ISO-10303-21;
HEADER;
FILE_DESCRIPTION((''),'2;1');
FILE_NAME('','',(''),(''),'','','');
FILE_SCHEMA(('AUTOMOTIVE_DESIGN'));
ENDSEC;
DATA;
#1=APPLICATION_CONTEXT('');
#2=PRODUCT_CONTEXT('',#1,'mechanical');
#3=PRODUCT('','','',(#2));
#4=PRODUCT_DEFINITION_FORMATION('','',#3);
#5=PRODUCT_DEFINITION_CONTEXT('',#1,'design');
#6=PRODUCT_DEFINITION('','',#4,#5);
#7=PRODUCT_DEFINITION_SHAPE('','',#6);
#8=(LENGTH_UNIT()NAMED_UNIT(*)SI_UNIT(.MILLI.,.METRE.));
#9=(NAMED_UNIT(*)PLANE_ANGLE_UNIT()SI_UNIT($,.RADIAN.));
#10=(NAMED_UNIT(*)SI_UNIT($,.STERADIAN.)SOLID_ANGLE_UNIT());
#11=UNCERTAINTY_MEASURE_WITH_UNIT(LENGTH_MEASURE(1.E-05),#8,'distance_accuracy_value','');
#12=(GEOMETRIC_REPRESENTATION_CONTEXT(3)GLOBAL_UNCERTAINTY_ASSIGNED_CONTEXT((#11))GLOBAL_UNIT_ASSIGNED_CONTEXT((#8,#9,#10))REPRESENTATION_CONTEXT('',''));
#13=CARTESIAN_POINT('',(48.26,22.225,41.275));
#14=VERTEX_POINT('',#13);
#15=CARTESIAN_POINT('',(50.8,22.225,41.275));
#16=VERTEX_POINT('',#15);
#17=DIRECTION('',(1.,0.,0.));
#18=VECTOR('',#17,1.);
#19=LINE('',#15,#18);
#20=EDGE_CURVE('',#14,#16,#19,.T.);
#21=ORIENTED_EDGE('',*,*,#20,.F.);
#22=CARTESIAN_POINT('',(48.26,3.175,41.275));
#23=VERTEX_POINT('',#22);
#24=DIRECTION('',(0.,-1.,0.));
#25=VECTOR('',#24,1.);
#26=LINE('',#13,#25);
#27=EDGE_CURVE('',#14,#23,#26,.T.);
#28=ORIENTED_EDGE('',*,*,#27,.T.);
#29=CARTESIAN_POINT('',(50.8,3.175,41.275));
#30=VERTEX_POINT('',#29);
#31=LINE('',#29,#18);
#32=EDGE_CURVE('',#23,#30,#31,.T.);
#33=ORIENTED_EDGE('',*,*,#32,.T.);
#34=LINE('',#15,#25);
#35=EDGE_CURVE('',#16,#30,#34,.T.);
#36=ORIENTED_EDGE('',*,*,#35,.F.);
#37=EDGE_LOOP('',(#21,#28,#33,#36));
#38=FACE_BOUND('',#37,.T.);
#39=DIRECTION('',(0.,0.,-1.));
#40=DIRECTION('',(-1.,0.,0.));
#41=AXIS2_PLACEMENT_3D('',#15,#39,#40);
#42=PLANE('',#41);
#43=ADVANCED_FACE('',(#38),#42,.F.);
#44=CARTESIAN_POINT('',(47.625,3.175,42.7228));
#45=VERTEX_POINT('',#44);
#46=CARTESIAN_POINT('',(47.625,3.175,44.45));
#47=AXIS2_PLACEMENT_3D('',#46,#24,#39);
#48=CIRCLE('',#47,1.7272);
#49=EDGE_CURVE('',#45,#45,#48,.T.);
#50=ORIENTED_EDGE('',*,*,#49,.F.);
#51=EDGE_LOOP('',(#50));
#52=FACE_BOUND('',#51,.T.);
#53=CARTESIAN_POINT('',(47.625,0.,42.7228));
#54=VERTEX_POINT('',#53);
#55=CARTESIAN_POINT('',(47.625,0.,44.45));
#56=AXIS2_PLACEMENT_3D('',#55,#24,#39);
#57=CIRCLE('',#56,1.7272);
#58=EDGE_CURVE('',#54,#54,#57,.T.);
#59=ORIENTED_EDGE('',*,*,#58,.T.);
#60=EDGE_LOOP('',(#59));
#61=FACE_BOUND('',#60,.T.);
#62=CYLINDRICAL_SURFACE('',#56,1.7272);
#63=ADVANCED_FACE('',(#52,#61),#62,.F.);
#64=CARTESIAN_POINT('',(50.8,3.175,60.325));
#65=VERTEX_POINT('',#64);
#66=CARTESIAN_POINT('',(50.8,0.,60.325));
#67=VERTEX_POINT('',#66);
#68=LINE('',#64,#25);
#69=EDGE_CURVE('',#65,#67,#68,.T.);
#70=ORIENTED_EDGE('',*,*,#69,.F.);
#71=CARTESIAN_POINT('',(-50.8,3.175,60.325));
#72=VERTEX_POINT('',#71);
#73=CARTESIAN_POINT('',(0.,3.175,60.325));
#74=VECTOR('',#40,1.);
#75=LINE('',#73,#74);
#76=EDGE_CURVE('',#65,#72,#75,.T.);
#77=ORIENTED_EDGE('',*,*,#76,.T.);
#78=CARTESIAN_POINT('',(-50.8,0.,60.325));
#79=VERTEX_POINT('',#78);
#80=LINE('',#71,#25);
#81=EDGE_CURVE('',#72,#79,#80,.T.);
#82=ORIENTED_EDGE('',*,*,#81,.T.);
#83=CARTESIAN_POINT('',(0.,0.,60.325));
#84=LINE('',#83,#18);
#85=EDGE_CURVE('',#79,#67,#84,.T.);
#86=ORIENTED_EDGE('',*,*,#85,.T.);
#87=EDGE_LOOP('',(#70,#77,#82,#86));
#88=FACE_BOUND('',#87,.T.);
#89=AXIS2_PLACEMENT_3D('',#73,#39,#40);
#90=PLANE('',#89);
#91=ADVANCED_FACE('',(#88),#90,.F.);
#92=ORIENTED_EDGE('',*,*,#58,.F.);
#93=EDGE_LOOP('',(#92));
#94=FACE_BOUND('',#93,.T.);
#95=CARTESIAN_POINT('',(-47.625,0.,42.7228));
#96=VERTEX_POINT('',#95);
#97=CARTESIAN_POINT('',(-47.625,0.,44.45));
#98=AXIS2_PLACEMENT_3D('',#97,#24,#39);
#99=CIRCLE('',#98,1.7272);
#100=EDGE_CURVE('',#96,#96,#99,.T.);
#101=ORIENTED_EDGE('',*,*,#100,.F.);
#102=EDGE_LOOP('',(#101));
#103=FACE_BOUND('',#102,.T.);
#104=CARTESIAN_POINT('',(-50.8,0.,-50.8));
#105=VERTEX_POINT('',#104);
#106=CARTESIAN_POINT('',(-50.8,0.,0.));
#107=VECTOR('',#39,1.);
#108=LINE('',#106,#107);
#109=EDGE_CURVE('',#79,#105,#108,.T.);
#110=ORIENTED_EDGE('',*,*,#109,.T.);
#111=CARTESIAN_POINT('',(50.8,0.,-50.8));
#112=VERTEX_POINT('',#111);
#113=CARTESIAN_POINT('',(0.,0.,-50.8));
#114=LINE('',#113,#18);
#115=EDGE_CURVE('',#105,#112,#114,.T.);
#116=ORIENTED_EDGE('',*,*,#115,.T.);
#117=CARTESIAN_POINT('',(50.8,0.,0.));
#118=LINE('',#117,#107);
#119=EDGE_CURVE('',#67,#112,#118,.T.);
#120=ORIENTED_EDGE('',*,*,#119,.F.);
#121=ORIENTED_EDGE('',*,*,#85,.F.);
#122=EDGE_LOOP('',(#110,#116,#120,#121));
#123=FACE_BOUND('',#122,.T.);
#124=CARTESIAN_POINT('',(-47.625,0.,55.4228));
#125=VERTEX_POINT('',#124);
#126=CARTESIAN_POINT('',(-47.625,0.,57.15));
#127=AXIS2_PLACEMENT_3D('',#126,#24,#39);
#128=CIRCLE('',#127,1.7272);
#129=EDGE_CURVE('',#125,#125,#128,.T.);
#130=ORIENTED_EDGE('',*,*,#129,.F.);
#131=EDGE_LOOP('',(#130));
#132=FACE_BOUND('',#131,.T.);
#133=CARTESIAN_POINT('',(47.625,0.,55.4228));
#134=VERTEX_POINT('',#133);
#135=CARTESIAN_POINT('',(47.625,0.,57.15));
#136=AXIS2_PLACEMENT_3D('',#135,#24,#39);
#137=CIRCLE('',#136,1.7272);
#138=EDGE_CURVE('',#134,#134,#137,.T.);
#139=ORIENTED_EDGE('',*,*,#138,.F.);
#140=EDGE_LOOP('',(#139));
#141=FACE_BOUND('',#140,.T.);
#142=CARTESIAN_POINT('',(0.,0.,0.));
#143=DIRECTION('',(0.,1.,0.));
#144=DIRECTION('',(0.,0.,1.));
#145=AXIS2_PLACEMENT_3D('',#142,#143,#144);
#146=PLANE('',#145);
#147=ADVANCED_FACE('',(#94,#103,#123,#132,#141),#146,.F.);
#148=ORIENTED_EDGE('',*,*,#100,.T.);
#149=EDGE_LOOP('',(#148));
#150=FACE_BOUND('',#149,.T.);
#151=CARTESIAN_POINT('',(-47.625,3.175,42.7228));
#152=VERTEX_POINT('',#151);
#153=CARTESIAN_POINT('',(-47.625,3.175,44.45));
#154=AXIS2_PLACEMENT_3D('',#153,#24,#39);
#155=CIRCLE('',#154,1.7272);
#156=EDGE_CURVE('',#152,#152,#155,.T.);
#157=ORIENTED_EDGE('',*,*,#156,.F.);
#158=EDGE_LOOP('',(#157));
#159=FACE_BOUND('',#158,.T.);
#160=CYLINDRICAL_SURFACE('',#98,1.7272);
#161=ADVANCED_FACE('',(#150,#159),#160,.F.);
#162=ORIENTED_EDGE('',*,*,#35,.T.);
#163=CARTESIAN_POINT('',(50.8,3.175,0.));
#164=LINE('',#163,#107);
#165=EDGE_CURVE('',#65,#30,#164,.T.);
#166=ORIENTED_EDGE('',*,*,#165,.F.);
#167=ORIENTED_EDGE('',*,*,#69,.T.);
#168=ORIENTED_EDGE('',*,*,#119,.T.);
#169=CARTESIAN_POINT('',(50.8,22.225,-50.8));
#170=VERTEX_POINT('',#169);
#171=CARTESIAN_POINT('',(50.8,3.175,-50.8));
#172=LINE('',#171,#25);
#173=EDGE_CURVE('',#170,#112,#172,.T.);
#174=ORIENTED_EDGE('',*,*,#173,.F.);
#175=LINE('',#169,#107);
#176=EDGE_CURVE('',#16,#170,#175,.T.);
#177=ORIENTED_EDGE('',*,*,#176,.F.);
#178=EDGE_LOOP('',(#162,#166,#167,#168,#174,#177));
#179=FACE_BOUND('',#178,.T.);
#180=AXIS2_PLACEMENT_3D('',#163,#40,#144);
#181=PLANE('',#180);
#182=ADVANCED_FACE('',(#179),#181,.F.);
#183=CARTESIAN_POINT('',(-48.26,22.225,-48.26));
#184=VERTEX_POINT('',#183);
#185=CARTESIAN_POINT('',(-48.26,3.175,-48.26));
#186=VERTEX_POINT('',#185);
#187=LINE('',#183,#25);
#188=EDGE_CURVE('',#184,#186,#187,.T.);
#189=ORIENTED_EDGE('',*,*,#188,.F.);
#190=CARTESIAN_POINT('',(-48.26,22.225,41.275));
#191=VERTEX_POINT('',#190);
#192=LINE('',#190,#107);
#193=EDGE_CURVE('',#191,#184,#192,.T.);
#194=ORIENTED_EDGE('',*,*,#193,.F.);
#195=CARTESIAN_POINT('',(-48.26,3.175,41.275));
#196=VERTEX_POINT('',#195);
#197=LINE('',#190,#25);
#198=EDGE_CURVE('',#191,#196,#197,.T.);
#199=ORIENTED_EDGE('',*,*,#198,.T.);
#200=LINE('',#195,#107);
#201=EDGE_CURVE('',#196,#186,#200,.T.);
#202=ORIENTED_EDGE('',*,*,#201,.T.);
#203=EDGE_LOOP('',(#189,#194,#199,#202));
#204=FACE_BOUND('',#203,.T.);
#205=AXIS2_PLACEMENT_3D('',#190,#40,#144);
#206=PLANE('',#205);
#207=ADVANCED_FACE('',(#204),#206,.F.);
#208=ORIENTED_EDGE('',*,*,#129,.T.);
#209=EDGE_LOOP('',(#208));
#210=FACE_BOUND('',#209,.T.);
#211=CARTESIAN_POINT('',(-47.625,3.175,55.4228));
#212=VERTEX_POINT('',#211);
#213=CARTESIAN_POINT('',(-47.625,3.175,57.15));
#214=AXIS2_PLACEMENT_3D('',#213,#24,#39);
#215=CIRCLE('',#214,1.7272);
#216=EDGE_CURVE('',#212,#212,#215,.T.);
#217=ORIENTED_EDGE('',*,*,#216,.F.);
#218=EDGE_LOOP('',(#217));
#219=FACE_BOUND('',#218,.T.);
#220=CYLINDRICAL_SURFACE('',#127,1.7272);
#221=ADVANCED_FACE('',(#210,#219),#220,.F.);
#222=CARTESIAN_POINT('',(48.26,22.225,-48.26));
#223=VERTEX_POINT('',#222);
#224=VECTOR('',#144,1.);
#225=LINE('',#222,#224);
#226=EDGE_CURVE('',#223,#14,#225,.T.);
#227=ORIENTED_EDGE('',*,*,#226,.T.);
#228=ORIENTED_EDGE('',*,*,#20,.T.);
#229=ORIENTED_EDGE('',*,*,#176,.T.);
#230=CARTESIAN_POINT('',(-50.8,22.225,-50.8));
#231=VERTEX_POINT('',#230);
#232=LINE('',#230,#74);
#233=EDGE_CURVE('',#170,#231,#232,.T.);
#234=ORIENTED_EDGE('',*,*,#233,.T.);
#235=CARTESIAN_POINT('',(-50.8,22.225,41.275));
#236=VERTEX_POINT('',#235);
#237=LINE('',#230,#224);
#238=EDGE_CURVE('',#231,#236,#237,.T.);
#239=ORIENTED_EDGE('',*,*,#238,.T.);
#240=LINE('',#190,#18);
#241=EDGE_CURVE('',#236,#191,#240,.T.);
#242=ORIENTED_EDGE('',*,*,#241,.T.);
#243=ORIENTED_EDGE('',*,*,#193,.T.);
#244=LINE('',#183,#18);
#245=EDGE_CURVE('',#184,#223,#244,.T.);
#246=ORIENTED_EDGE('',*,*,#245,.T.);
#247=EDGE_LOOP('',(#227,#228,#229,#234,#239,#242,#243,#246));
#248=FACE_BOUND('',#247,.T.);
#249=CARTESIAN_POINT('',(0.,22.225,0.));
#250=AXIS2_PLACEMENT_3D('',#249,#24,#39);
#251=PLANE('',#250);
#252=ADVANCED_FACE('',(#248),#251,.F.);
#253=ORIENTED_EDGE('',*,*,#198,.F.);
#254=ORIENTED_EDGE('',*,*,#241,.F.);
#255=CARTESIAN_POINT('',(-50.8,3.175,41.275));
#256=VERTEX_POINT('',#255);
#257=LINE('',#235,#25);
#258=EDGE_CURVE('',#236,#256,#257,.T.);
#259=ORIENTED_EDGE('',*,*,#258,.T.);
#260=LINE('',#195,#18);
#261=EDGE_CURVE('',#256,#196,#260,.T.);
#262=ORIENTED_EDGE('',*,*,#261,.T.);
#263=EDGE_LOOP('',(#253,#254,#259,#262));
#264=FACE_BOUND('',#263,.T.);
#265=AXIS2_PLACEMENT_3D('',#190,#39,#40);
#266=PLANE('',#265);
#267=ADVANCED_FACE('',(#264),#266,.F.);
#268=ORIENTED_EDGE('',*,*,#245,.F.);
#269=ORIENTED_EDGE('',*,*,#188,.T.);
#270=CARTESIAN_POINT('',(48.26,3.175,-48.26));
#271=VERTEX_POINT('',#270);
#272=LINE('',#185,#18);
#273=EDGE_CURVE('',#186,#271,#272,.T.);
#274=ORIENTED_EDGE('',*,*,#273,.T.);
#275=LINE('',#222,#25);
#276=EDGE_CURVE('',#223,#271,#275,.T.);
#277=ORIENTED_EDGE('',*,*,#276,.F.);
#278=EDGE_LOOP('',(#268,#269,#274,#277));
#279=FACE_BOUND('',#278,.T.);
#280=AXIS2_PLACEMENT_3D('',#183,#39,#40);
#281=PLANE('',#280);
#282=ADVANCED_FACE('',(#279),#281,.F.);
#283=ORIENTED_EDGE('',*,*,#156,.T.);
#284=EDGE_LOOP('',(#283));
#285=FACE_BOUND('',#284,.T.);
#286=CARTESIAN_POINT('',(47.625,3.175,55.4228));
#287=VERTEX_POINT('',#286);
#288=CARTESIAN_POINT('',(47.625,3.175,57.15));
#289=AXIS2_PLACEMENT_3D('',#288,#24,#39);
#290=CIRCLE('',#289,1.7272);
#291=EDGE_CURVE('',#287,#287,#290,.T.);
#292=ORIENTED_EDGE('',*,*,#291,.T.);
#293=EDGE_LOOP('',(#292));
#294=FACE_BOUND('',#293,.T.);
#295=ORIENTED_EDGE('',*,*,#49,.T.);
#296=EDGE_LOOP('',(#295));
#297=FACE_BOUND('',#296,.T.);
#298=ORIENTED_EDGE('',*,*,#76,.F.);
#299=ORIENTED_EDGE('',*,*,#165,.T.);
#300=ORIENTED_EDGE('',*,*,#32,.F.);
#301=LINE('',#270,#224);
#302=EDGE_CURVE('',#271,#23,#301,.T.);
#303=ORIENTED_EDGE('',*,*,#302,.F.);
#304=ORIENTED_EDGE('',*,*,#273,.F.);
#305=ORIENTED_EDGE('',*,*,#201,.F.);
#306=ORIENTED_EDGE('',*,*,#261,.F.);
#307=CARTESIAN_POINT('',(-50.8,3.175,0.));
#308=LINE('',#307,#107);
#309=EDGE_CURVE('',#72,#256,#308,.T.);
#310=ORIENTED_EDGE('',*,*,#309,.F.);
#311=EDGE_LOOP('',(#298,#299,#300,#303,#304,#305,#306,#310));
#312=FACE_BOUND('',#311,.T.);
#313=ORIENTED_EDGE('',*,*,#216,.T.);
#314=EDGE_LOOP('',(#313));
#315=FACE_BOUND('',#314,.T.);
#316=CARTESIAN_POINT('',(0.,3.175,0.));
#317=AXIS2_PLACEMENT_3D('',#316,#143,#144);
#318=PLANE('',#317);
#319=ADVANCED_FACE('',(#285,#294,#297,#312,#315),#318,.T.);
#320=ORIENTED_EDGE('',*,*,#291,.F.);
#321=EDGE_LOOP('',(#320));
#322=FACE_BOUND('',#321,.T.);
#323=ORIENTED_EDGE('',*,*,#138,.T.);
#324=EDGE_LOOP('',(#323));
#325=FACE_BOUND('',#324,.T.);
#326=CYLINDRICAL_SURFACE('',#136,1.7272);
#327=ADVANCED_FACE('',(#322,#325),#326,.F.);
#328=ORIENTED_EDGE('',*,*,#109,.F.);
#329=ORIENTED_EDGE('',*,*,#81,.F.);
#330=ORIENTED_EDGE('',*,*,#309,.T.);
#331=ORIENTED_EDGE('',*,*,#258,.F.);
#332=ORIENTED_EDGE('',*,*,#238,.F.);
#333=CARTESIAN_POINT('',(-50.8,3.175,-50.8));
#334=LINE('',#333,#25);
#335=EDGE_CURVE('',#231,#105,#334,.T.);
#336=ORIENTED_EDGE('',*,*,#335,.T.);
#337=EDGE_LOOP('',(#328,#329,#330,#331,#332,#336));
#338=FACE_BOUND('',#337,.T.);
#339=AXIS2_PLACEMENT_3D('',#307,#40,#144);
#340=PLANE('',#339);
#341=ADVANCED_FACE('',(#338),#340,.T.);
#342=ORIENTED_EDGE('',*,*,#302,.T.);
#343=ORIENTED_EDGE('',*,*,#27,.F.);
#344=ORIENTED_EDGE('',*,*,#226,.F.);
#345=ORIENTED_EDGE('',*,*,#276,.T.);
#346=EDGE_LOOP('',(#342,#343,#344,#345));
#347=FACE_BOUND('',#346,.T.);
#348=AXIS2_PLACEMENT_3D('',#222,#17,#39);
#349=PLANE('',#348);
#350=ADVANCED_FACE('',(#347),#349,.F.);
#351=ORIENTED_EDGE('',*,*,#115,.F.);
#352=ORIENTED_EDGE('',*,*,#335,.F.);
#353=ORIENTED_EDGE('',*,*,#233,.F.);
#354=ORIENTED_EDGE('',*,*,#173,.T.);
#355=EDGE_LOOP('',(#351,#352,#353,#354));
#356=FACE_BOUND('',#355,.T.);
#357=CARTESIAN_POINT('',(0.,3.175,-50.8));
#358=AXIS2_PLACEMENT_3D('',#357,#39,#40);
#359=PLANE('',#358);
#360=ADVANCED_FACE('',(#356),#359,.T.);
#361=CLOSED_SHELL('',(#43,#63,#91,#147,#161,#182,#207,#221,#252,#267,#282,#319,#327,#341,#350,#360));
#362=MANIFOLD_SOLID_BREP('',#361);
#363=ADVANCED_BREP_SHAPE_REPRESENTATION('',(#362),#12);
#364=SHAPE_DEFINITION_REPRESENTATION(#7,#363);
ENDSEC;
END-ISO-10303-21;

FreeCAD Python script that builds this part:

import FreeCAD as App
import Part
import Sketcher

V = App.Vector
Q = App.Units.Quantity


def add_polygon(sketch, points):
    """Adds a closed chain of lines whose ends are joined by coincident constraints."""
    first, n = sketch.GeometryCount, len(points)
    for a, b in zip(points, points[1:] + points[:1]):
        sketch.addGeometry(Part.LineSegment(App.Vector(*a, 0), App.Vector(*b, 0)), False)
    for i in range(n):
        sketch.addConstraint(Sketcher.Constraint("Coincident", first + i, 2, first + (i + 1) % n, 1))

doc = App.newDocument("Part")
body = doc.addObject("PartDesign::Body", "Body")

# Sketch on XZ plane
sketch1 = body.newObject("Sketcher::SketchObject", "Sketch")
sketch1.AttachmentSupport = (doc.getObject("XZ_Plane"), [""])
sketch1.MapMode = "FlatFace"
add_polygon(sketch1, [(-51, -51), (-51, 60), (-44, 60), (-44, 51), (44, 51), (44, 60), (51, 60), (51, -51)])  # lines 0-7
sketch1.addConstraint(Sketcher.Constraint("Vertical", 0))
sketch1.addConstraint(Sketcher.Constraint("Horizontal", 1))
sketch1.addConstraint(Sketcher.Constraint("Vertical", 2))
sketch1.addConstraint(Sketcher.Constraint("Horizontal", 3))
sketch1.addConstraint(Sketcher.Constraint("Vertical", 4))
sketch1.addConstraint(Sketcher.Constraint("Horizontal", 5))
sketch1.addConstraint(Sketcher.Constraint("Vertical", 6))
sketch1.addConstraint(Sketcher.Constraint("Horizontal", 7))
sketch1.addConstraint(Sketcher.Constraint("Symmetric", 1, 2, 4, 2, -2))
sketch1.addConstraint(Sketcher.Constraint("Equal", 1, 5))
sketch1.addConstraint(Sketcher.Constraint("DistanceX", 7, 2, 7, 1, Q("4 in")))
sketch1.addConstraint(Sketcher.Constraint("DistanceX", 3, 1, 3, 2, Q("3.5 in")))
sketch1.addConstraint(Sketcher.Constraint("DistanceY", -1, 1, 2, 2, Q("2 in")))
sketch1.addConstraint(Sketcher.Constraint("DistanceY", 6, 2, -1, 1, Q("2 in")))
sketch1.addConstraint(Sketcher.Constraint("DistanceY", 0, 1, 0, 2, Q("4.375 in")))
pad1 = body.newObject("PartDesign::Pad", "Pad")
pad1.Profile = sketch1
pad1.Length = Q("0.125 in")
pad1.Reversed = True

# Sketch on XZ plane
sketch2 = body.newObject("Sketcher::SketchObject", "Sketch001")
sketch2.AttachmentSupport = (doc.getObject("XZ_Plane"), [""])
sketch2.MapMode = "FlatFace"
sketch2.addGeometry(Part.Circle(V(47.6, 57.1, 0), V(0, 0, 1), 1.7), False)
sketch2.addGeometry(Part.Circle(V(47.6, 44.5, 0), V(0, 0, 1), 1.7), False)
sketch2.addGeometry(Part.Circle(V(-47.6, 57.1, 0), V(0, 0, 1), 1.7), False)
sketch2.addGeometry(Part.Circle(V(-47.6, 44.5, 0), V(0, 0, 1), 1.7), False)
sketch2.addConstraint(Sketcher.Constraint("Equal", 0, 1))
sketch2.addConstraint(Sketcher.Constraint("Equal", 1, 2))
sketch2.addConstraint(Sketcher.Constraint("Equal", 2, 3))
sketch2.addConstraint(Sketcher.Constraint("Symmetric", 0, 3, 2, 3, -2))
sketch2.addConstraint(Sketcher.Constraint("Symmetric", 1, 3, 3, 3, -2))
sketch2.addConstraint(Sketcher.Constraint("Vertical", 0, 3, 1, 3))
sketch2.addConstraint(Sketcher.Constraint("Diameter", 0, Q("0.136 in")))
sketch2.addConstraint(Sketcher.Constraint("DistanceY", 1, 3, 0, 3, Q("0.5 in")))
sketch2.addConstraint(Sketcher.Constraint("DistanceY", -1, 1, 0, 3, Q("2.25 in")))
sketch2.addConstraint(Sketcher.Constraint("DistanceX", 2, 3, 0, 3, Q("3.75 in")))
doc.recompute()
hole = body.newObject("PartDesign::Hole", "Hole")
hole.Profile = sketch2
hole.ThreadType = "None"
hole.Diameter = Q("0.136 in")
hole.DepthType = "ThroughAll"

# Sketch on XZ plane
sketch3 = body.newObject("Sketcher::SketchObject", "Sketch002")
sketch3.AttachmentSupport = (doc.getObject("XZ_Plane"), [""])
sketch3.MapMode = "FlatFace"
sketch3.AttachmentOffset = App.Placement(V(0, 0, -0.125 * 25.4), App.Rotation())
add_polygon(sketch3, [(50.8, -50.8), (-50.8, -50.8), (-50.8, 41.3), (-48.3, 41.3), (-48.3, -48.3), (48.3, -48.3), (48.3, 41.3), (50.8, 41.3)])  # lines 0-7
sketch3.addConstraint(Sketcher.Constraint("Horizontal", 0))
sketch3.addConstraint(Sketcher.Constraint("Vertical", 1))
sketch3.addConstraint(Sketcher.Constraint("Horizontal", 2))
sketch3.addConstraint(Sketcher.Constraint("Vertical", 3))
sketch3.addConstraint(Sketcher.Constraint("Horizontal", 4))
sketch3.addConstraint(Sketcher.Constraint("Vertical", 5))
sketch3.addConstraint(Sketcher.Constraint("Horizontal", 6))
sketch3.addConstraint(Sketcher.Constraint("Vertical", 7))
sketch3.addConstraint(Sketcher.Constraint("Symmetric", 2, 2, 5, 2, -2))
sketch3.addConstraint(Sketcher.Constraint("Equal", 2, 6))
sketch3.addConstraint(Sketcher.Constraint("DistanceX", 0, 2, 0, 1, Q("4 in")))
sketch3.addConstraint(Sketcher.Constraint("DistanceX", 2, 1, 2, 2, Q("0.1 in")))
sketch3.addConstraint(Sketcher.Constraint("DistanceY", 0, 2, -1, 1, Q("2 in")))
sketch3.addConstraint(Sketcher.Constraint("DistanceY", 3, 2, -1, 1, Q("1.9 in")))
sketch3.addConstraint(Sketcher.Constraint("DistanceY", 1, 1, 1, 2, Q("3.625 in")))
pad2 = body.newObject("PartDesign::Pad", "Pad001")
pad2.Profile = sketch3
pad2.Length = Q("0.75 in")
pad2.Reversed = True

# Sketch on XZ plane
sketch4 = body.newObject("Sketcher::SketchObject", "Sketch003")
sketch4.AttachmentSupport = (doc.getObject("XZ_Plane"), [""])
sketch4.MapMode = "FlatFace"
add_polygon(sketch4, [(-44, 51), (-44, 60), (44, 60), (44, 51)])  # lines 0-3
sketch4.addConstraint(Sketcher.Constraint("Vertical", 0))
sketch4.addConstraint(Sketcher.Constraint("Horizontal", 1))
sketch4.addConstraint(Sketcher.Constraint("Vertical", 2))
sketch4.addConstraint(Sketcher.Constraint("Horizontal", 3))
sketch4.addConstraint(Sketcher.Constraint("DistanceX", 1, 1, 1, 2, Q("3.5 in")))
sketch4.addConstraint(Sketcher.Constraint("DistanceY", -1, 1, 2, 2, Q("2 in")))
sketch4.addConstraint(Sketcher.Constraint("DistanceY", 0, 1, 0, 2, Q("0.375 in")))
sketch4.addConstraint(Sketcher.Constraint("DistanceX", 0, 2, -1, 1, Q("1.75 in")))
pad3 = body.newObject("PartDesign::Pad", "Pad002")
pad3.Profile = sketch4
pad3.Length = Q("0.125 in")
pad3.Reversed = True

doc.recompute()
